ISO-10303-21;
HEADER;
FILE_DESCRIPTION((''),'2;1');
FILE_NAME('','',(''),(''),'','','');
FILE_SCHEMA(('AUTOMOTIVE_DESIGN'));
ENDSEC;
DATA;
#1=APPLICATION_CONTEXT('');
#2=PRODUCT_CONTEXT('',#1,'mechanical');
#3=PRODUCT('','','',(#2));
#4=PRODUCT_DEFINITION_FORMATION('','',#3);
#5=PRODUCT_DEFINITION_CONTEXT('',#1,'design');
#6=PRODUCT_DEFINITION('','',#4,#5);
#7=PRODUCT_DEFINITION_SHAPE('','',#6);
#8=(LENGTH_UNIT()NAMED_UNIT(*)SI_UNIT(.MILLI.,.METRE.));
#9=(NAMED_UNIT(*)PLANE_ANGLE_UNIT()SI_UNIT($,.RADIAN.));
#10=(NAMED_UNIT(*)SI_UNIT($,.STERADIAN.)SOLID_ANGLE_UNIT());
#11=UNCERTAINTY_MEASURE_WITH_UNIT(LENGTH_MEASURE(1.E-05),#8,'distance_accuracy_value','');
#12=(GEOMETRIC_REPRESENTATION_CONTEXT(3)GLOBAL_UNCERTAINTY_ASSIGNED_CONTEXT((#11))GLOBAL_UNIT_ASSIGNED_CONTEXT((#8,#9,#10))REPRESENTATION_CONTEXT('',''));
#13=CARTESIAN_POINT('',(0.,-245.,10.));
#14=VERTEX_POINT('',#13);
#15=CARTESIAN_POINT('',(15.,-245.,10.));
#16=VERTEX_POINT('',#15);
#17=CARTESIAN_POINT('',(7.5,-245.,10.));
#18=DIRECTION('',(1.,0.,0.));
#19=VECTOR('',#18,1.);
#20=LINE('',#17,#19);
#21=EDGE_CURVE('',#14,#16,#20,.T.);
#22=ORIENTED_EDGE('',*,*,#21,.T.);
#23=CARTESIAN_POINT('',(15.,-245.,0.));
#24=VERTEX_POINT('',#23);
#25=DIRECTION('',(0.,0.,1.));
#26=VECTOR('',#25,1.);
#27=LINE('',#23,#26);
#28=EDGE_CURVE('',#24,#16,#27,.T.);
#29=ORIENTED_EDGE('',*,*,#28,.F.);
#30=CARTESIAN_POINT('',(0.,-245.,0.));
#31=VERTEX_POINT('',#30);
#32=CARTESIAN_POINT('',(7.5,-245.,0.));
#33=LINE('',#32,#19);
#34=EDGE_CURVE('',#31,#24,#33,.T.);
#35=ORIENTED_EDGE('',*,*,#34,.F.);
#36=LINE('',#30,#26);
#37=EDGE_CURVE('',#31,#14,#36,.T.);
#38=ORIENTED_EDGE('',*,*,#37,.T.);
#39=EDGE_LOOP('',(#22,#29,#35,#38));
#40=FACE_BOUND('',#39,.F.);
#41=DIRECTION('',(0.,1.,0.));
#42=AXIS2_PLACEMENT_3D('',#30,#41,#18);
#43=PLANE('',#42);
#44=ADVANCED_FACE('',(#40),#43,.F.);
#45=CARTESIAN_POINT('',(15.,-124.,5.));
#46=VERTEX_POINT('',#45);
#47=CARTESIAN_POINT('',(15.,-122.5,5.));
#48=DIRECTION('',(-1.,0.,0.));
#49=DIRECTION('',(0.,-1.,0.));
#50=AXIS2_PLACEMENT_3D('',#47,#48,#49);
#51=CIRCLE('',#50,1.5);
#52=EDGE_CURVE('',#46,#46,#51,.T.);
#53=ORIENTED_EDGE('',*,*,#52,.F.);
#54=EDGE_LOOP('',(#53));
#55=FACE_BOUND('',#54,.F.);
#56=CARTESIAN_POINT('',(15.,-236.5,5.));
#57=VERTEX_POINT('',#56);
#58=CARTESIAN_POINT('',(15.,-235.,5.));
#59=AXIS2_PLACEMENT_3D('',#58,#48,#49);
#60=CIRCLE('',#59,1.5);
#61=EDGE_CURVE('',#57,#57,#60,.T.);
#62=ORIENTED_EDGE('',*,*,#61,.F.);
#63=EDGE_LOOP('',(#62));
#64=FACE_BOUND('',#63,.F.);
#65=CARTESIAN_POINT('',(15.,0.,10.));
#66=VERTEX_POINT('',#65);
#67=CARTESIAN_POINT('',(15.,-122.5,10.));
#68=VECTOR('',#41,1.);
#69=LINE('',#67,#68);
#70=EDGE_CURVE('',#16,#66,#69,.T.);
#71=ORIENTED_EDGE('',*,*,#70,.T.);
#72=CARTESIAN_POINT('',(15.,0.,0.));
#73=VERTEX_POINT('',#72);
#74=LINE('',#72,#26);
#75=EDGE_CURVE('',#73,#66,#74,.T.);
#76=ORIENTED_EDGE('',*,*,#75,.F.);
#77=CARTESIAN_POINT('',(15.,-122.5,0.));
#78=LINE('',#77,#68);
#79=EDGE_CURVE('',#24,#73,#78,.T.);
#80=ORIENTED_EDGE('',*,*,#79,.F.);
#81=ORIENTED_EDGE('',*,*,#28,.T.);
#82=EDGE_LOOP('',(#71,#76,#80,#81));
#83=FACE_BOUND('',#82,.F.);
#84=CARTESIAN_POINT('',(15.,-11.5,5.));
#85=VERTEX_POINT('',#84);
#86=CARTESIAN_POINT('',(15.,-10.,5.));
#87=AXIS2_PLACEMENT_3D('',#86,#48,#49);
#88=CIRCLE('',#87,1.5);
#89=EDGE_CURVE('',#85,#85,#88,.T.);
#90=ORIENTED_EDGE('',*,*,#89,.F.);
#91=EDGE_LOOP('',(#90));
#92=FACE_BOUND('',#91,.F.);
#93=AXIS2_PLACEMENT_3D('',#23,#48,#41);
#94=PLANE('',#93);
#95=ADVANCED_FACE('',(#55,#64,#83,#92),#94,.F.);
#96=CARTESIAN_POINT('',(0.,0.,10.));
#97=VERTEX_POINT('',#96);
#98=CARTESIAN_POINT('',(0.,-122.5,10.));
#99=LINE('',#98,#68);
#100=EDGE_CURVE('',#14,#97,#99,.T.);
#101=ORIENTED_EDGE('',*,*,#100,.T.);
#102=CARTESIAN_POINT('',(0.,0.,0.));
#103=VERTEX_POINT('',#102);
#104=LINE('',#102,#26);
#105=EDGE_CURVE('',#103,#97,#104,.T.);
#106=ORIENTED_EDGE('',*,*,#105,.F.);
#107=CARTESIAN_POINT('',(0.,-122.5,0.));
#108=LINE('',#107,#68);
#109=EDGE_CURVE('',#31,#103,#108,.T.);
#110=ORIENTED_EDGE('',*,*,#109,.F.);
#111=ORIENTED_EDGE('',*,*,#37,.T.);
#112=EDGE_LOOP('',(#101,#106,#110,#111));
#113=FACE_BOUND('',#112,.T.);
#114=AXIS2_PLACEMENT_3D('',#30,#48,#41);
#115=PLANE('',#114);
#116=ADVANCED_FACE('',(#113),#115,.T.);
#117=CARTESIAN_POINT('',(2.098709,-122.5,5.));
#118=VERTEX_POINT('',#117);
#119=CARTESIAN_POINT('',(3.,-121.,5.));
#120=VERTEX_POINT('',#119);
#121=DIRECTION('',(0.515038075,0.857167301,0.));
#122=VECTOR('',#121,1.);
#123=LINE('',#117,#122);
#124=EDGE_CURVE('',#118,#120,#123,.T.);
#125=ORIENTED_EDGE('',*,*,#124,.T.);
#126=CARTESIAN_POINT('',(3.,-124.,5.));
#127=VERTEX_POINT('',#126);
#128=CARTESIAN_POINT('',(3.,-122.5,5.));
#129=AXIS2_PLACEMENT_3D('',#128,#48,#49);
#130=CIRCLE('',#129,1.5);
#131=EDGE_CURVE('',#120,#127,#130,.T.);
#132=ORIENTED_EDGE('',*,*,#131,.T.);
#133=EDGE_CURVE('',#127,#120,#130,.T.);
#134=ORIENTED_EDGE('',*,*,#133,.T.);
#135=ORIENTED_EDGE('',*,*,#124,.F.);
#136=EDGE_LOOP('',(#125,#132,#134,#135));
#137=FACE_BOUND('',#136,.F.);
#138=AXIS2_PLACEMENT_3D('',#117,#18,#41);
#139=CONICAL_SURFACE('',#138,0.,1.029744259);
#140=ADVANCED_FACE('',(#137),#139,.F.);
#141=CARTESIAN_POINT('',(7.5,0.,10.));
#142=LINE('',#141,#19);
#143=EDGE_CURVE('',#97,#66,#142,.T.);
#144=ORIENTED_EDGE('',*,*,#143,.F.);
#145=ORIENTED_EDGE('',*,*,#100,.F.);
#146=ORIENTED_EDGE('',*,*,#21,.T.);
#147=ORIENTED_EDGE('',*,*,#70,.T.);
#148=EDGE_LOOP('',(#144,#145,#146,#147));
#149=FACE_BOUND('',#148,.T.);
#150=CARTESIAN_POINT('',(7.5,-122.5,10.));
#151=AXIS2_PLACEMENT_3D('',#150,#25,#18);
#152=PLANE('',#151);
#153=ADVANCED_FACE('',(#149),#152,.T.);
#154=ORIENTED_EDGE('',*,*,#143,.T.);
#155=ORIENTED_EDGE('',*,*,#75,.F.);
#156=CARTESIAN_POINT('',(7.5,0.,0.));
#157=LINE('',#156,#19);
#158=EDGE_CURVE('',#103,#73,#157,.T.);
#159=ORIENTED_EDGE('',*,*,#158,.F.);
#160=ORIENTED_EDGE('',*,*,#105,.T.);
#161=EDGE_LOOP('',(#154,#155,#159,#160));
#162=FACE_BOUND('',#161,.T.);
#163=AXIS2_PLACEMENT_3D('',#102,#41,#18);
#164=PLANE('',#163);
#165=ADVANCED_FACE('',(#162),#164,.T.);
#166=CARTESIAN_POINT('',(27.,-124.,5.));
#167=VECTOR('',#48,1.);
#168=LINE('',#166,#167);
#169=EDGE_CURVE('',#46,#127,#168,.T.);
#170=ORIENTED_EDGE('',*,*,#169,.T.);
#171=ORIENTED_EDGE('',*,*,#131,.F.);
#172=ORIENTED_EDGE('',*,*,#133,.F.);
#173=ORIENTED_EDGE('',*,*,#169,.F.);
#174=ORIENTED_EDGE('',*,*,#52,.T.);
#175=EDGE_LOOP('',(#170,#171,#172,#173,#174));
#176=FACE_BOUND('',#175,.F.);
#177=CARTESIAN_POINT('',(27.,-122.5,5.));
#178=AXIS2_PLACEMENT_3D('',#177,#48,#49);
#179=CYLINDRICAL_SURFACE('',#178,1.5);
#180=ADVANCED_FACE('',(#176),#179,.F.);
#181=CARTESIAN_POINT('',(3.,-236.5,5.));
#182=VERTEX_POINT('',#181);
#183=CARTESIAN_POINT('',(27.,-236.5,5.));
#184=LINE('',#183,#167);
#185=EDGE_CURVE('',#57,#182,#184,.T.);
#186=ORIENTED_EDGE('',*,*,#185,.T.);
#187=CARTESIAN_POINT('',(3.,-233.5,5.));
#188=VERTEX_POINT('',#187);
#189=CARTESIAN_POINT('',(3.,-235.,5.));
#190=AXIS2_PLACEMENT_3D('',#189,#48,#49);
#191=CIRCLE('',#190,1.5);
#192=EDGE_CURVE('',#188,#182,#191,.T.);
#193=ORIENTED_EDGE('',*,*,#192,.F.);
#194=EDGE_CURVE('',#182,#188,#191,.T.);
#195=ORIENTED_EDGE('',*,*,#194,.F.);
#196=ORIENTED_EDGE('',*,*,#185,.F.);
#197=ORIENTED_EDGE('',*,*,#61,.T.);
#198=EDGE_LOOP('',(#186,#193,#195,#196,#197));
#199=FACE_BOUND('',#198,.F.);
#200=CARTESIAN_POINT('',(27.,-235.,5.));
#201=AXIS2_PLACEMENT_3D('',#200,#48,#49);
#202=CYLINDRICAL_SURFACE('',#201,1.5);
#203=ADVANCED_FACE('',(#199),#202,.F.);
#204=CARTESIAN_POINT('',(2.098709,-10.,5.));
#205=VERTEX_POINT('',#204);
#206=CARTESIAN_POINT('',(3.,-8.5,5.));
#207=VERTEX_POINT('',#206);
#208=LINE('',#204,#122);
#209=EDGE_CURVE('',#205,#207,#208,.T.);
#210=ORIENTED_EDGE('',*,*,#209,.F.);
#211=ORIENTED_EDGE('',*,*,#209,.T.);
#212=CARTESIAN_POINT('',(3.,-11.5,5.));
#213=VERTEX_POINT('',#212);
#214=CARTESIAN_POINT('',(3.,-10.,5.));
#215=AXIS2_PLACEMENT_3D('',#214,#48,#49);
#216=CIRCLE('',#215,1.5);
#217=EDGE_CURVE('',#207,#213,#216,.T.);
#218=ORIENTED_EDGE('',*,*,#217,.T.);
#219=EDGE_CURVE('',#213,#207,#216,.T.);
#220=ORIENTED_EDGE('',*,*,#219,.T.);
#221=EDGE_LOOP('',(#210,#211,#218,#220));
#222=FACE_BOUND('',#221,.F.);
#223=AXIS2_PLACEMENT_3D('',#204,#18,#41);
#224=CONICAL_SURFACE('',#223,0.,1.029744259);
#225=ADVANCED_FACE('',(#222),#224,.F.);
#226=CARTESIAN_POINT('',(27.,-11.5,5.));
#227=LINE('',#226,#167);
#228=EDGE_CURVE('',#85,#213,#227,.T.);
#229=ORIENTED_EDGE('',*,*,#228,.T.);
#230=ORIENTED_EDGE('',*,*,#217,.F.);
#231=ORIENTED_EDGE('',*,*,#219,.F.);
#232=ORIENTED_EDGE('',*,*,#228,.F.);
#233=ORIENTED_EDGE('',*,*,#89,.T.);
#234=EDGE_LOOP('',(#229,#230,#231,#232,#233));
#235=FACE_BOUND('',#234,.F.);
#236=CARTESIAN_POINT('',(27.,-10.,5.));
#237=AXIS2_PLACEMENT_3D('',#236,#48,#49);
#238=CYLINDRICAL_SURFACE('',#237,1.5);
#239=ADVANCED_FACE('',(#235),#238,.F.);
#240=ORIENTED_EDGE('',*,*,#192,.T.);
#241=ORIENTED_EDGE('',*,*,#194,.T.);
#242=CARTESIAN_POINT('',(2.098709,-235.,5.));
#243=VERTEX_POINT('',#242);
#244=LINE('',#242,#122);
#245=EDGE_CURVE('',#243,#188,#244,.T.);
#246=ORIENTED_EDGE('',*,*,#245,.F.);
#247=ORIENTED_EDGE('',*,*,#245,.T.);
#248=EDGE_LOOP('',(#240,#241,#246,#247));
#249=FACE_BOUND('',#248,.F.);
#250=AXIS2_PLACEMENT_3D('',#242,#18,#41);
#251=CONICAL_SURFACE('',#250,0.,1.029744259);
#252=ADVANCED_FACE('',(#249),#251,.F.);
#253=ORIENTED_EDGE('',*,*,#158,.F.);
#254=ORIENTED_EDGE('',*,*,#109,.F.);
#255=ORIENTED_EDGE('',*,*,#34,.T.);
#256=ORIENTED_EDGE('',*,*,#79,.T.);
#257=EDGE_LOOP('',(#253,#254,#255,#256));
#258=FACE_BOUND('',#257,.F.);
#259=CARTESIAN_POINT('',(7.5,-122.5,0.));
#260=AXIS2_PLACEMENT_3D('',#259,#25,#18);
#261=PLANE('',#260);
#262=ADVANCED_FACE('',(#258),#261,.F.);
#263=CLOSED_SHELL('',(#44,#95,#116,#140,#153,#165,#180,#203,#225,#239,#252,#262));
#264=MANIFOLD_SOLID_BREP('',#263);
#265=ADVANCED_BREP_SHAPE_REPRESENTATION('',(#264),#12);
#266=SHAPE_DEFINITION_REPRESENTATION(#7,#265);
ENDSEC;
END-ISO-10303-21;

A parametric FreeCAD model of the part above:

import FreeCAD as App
import Part
import Sketcher
Q = App.Units.Quantity


def add_polygon(sketch, points):
    """Adds a closed chain of lines whose ends are joined by coincident constraints."""
    first, n = sketch.GeometryCount, len(points)
    for a, b in zip(points, points[1:] + points[:1]):
        sketch.addGeometry(Part.LineSegment(App.Vector(*a, 0), App.Vector(*b, 0)), False)
    for i in range(n):
        sketch.addConstraint(Sketcher.Constraint("Coincident", first + i, 2, first + (i + 1) % n, 1))

doc = App.newDocument("Part")
params = doc.addObject("Spreadsheet::Sheet", "Params")
for row, (alias, value) in enumerate([
    ("sketch1_width", "15 mm"),
    ("sketch1_height", "245 mm"),
    ("pad1_length", "10 mm"),
    ("sketch2_diameter", "3 mm"),
    ("hole_diameter", "3 mm"),
    ("hole_depth", "12 mm"),
], start=1):
    params.set(f"A{row}", alias)
    params.set(f"B{row}", "=" + value)
    params.setAlias(f"B{row}", alias)

body = doc.addObject("PartDesign::Body", "Body")

sketch1 = doc.addObject("Sketcher::SketchObject", "Sketch")
body.addObject(sketch1)
sketch1.AttachmentSupport = (doc.XY_Plane, [""])
sketch1.MapMode = "FlatFace"
add_polygon(sketch1, [(0, 0), (0, -245), (15, -245), (15, 0)])
sketch1.addConstraint([
    Sketcher.Constraint("Vertical", 0),
    Sketcher.Constraint("Horizontal", 1),
    Sketcher.Constraint("Vertical", 2),
    Sketcher.Constraint("Horizontal", 3),
    Sketcher.Constraint("Coincident", 3, 2, -1, 1),
    Sketcher.Constraint("DistanceX", 1, 1, 1, 2, Q("15 mm")),
    Sketcher.Constraint("DistanceY", 0, 2, 0, 1, Q("245 mm")),
])
sketch1.setExpression("Constraints[9]", "Params.sketch1_width")
sketch1.setExpression("Constraints[10]", "Params.sketch1_height")
pad1 = doc.addObject("PartDesign::Pad", "Pad")
body.addObject(pad1)
pad1.Profile = sketch1
pad1.setExpression("Length", "Params.pad1_length")

sketch2 = doc.addObject("Sketcher::SketchObject", "Sketch001")
body.addObject(sketch2)
sketch2.AttachmentSupport = (doc.YZ_Plane, [""])
sketch2.MapMode = "FlatFace"
sketch2.AttachmentOffset = App.Placement(App.Vector(0, 0, 15), App.Rotation())
sketch2.addGeometry([
    Part.Circle(App.Vector(-235, 5, 0), App.Vector(0, 0, 1), 1.5),
    Part.Circle(App.Vector(-122.5, 5, 0), App.Vector(0, 0, 1), 1.5),
    Part.Circle(App.Vector(-10, 5, 0), App.Vector(0, 0, 1), 1.5),
], False)
sketch2.addConstraint([
    Sketcher.Constraint("Equal", 0, 1),
    Sketcher.Constraint("Equal", 1, 2),
    Sketcher.Constraint("Horizontal", 0, 3, 1, 3),
    Sketcher.Constraint("Horizontal", 1, 3, 2, 3),
    Sketcher.Constraint("Diameter", 0, Q("3 mm")),
    Sketcher.Constraint("DistanceX", 0, 3, -1, 1, Q("235 mm")),
    Sketcher.Constraint("DistanceY", -1, 1, 0, 3, Q("5 mm")),
    Sketcher.Constraint("DistanceX", 2, 3, -1, 1, Q("10 mm")),
    Sketcher.Constraint("DistanceX", 1, 3, -1, 1, Q("122.5 mm")),
])
sketch2.setExpression("Constraints[4]", "Params.sketch2_diameter")
doc.recompute()
hole = doc.addObject("PartDesign::Hole", "Hole")
body.addObject(hole)
hole.Profile = sketch2
hole.ThreadType = "None"
hole.setExpression("Diameter", "Params.hole_diameter")
hole.DepthType = "Dimension"
hole.setExpression("Depth", "Params.hole_depth")
hole.DrillPoint = "Angled"
hole.DrillPointAngle = 118

doc.recompute()
